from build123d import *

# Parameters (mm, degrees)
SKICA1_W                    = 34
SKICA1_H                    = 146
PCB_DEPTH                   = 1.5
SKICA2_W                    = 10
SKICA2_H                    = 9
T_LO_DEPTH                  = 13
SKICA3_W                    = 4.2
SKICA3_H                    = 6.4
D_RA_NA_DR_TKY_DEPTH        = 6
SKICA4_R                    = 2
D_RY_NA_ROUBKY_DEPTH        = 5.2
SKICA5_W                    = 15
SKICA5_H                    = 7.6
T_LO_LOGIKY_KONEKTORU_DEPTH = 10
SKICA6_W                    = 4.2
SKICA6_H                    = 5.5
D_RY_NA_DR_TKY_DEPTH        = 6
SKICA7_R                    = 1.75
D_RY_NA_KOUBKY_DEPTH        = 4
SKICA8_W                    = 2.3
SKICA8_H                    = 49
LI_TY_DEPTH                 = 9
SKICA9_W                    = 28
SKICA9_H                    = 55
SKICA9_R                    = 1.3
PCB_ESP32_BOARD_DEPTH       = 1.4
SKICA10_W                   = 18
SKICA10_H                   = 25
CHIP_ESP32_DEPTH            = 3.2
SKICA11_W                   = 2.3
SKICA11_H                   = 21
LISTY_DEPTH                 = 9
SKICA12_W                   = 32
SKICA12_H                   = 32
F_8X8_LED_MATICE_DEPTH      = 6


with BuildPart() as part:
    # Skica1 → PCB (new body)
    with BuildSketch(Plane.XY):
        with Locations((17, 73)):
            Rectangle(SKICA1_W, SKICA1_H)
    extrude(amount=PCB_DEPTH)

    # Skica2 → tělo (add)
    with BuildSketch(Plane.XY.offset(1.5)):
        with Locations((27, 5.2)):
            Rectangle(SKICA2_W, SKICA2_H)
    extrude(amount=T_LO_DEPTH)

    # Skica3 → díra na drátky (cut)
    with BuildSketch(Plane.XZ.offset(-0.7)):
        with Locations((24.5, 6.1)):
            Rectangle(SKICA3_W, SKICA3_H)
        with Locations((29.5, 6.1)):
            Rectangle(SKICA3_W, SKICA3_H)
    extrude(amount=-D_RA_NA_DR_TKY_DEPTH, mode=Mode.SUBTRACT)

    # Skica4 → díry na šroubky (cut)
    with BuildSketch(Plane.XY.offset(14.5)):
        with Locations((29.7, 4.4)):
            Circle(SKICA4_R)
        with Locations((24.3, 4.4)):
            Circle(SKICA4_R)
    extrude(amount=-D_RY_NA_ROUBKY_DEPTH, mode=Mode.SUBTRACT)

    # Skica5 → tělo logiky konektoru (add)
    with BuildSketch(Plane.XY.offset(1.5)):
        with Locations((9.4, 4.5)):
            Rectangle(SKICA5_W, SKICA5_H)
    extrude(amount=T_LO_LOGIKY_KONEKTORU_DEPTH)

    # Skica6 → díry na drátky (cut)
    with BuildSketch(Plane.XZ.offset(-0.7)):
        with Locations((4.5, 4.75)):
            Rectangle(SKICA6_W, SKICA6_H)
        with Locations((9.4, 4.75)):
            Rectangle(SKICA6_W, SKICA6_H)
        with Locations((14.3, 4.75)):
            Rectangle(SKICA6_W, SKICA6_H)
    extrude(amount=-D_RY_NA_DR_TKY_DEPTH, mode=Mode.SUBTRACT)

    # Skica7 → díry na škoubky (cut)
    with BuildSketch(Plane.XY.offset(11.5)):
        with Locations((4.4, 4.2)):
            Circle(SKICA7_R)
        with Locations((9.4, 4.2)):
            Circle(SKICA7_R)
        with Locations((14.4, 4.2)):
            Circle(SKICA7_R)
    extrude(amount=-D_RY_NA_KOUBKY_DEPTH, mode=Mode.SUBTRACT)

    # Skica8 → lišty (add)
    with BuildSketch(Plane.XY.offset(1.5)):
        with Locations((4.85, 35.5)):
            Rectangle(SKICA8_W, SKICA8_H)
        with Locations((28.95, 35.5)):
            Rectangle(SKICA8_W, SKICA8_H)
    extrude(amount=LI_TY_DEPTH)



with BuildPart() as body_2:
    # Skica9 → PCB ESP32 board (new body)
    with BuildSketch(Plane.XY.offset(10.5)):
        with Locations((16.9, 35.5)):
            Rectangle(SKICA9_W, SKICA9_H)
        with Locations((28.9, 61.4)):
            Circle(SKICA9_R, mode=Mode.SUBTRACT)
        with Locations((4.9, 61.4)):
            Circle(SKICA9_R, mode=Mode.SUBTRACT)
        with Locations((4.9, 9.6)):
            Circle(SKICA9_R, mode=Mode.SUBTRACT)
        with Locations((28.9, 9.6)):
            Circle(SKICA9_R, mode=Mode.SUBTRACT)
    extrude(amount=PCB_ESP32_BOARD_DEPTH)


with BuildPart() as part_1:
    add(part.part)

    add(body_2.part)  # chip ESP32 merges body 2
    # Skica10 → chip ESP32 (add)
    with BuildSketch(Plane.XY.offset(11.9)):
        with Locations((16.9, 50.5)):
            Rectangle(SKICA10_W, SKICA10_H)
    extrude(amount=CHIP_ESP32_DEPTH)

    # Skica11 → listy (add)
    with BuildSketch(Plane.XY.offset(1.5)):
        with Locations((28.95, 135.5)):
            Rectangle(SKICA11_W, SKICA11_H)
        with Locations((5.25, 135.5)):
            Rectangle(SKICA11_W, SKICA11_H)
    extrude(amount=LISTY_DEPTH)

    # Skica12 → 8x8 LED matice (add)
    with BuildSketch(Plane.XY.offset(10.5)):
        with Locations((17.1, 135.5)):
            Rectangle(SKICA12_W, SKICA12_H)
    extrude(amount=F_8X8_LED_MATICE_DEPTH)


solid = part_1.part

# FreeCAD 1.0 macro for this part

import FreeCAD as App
import Part
import Sketcher
from FreeCAD import Vector
Q = App.Units.Quantity

doc = App.newDocument("Part")
body = doc.addObject("PartDesign::Body", "Body")

# Sketch on XY plane
sketch1 = body.newObject("Sketcher::SketchObject", "Sketch")
sketch1.AttachmentSupport = (doc.getObject("XY_Plane"), [""])
sketch1.MapMode = "FlatFace"
sketch1.addGeometry([
    Part.LineSegment(Vector(0, 146, 0), Vector(0, 0, 0)),
    Part.LineSegment(Vector(0, 0, 0), Vector(34, 0, 0)),
    Part.LineSegment(Vector(34, 0, 0), Vector(34, 146, 0)),
    Part.LineSegment(Vector(34, 146, 0), Vector(0, 146, 0)),
], False)
sketch1.addConstraint([
    Sketcher.Constraint("Coincident", 0, 2, 1, 1),
    Sketcher.Constraint("Coincident", 1, 2, 2, 1),
    Sketcher.Constraint("Coincident", 2, 2, 3, 1),
    Sketcher.Constraint("Coincident", 3, 2, 0, 1),
    Sketcher.Constraint("Vertical", 0),
    Sketcher.Constraint("Horizontal", 1),
    Sketcher.Constraint("Vertical", 2),
    Sketcher.Constraint("Horizontal", 3),
    Sketcher.Constraint("Coincident", 0, 2, -1, 1),
    Sketcher.Constraint("DistanceX", 1, 1, 1, 2, Q("34 mm")),
    Sketcher.Constraint("DistanceY", 0, 2, 0, 1, Q("146 mm")),
])
pad1 = body.newObject("PartDesign::Pad", "Pad")
pad1.Profile = sketch1
pad1.Length = 1.5

# Sketch on XY plane
sketch2 = body.newObject("Sketcher::SketchObject", "Sketch001")
sketch2.AttachmentSupport = (doc.getObject("XY_Plane"), [""])
sketch2.MapMode = "FlatFace"
sketch2.AttachmentOffset = App.Placement(Vector(0, 0, 1.5), App.Rotation())
sketch2.addGeometry([
    Part.LineSegment(Vector(22, 10, 0), Vector(22, 1, 0)),
    Part.LineSegment(Vector(22, 1, 0), Vector(32, 1, 0)),
    Part.LineSegment(Vector(32, 1, 0), Vector(32, 10, 0)),
    Part.LineSegment(Vector(32, 10, 0), Vector(22, 10, 0)),
], False)
sketch2.addConstraint([
    Sketcher.Constraint("Coincident", 0, 2, 1, 1),
    Sketcher.Constraint("Coincident", 1, 2, 2, 1),
    Sketcher.Constraint("Coincident", 2, 2, 3, 1),
    Sketcher.Constraint("Coincident", 3, 2, 0, 1),
    Sketcher.Constraint("Vertical", 0),
    Sketcher.Constraint("Horizontal", 1),
    Sketcher.Constraint("Vertical", 2),
    Sketcher.Constraint("Horizontal", 3),
    Sketcher.Constraint("DistanceX", 1, 1, 1, 2, Q("10 mm")),
    Sketcher.Constraint("DistanceY", 0, 2, 0, 1, Q("9 mm")),
    Sketcher.Constraint("DistanceX", -1, 1, 0, 2, Q("22 mm")),
    Sketcher.Constraint("DistanceY", -1, 1, 0, 2, Q("0.7 mm")),
])
pad2 = body.newObject("PartDesign::Pad", "Pad001")
pad2.Profile = sketch2
pad2.Length = 13

# Sketch on XZ plane
sketch3 = body.newObject("Sketcher::SketchObject", "Sketch002")
sketch3.AttachmentSupport = (doc.getObject("XZ_Plane"), [""])
sketch3.MapMode = "FlatFace"
sketch3.AttachmentOffset = App.Placement(Vector(0, 0, -0.7), App.Rotation())
sketch3.addGeometry([
    Part.LineSegment(Vector(22.4, 9.3, 0), Vector(22.4, 2.9, 0)),  # 0
    Part.LineSegment(Vector(22.4, 2.9, 0), Vector(26.6, 2.9, 0)),  # 1
    Part.LineSegment(Vector(26.6, 2.9, 0), Vector(26.6, 9.3, 0)),  # 2
    Part.LineSegment(Vector(26.6, 9.3, 0), Vector(22.4, 9.3, 0)),  # 3
    Part.LineSegment(Vector(27.4, 9.3, 0), Vector(27.4, 2.9, 0)),  # 4
    Part.LineSegment(Vector(27.4, 2.9, 0), Vector(31.6, 2.9, 0)),  # 5
    Part.LineSegment(Vector(31.6, 2.9, 0), Vector(31.6, 9.3, 0)),  # 6
    Part.LineSegment(Vector(31.6, 9.3, 0), Vector(27.4, 9.3, 0)),  # 7
], False)
sketch3.addConstraint([
    Sketcher.Constraint("Coincident", 0, 2, 1, 1),
    Sketcher.Constraint("Coincident", 1, 2, 2, 1),
    Sketcher.Constraint("Coincident", 2, 2, 3, 1),
    Sketcher.Constraint("Coincident", 3, 2, 0, 1),
    Sketcher.Constraint("Coincident", 4, 2, 5, 1),
    Sketcher.Constraint("Coincident", 5, 2, 6, 1),
    Sketcher.Constraint("Coincident", 6, 2, 7, 1),
    Sketcher.Constraint("Coincident", 7, 2, 4, 1),
    Sketcher.Constraint("Vertical", 0),
    Sketcher.Constraint("Horizontal", 1),
    Sketcher.Constraint("Vertical", 2),
    Sketcher.Constraint("Horizontal", 3),
    Sketcher.Constraint("Vertical", 4),
    Sketcher.Constraint("Horizontal", 5),
    Sketcher.Constraint("Vertical", 6),
    Sketcher.Constraint("Horizontal", 7),
    Sketcher.Constraint("Horizontal", 1, 2, 4, 2),
    Sketcher.Constraint("Horizontal", 3, 2, 6, 2),
    Sketcher.Constraint("Equal", 3, 5),
    Sketcher.Constraint("DistanceX", 1, 1, 1, 2, Q("4.2 mm")),
    Sketcher.Constraint("DistanceY", 0, 2, 0, 1, Q("6.4 mm")),
    Sketcher.Constraint("DistanceX", 0, 2, 4, 2, Q("5 mm")),
    Sketcher.Constraint("DistanceX", -1, 1, 0, 2, Q("22.4 mm")),
    Sketcher.Constraint("DistanceY", -1, 1, 0, 2, Q("2.9 mm")),
])
pocket1 = body.newObject("PartDesign::Pocket", "Pocket")
pocket1.Profile = sketch3
pocket1.Length = 6

# Sketch on XY plane
sketch4 = body.newObject("Sketcher::SketchObject", "Sketch003")
sketch4.AttachmentSupport = (doc.getObject("XY_Plane"), [""])
sketch4.MapMode = "FlatFace"
sketch4.AttachmentOffset = App.Placement(Vector(0, 0, 14.5), App.Rotation())
sketch4.addGeometry([
    Part.Circle(Vector(29.7, 4.4, 0), Vector(0, 0, 1), 2),
    Part.Circle(Vector(24.3, 4.4, 0), Vector(0, 0, 1), 2),
], False)
sketch4.addConstraint([
    Sketcher.Constraint("Equal", 0, 1),
    Sketcher.Constraint("Horizontal", 0, 3, 1, 3),
    Sketcher.Constraint("Diameter", 0, Q("4 mm")),
    Sketcher.Constraint("DistanceX", -1, 1, 0, 3, Q("29.7 mm")),
    Sketcher.Constraint("DistanceY", -1, 1, 0, 3, Q("4.4 mm")),
    Sketcher.Constraint("DistanceX", -1, 1, 1, 3, Q("24.3 mm")),
])
pocket2 = body.newObject("PartDesign::Pocket", "Pocket001")
pocket2.Profile = sketch4
pocket2.Length = 5.2

# Sketch on XY plane
sketch5 = body.newObject("Sketcher::SketchObject", "Sketch004")
sketch5.AttachmentSupport = (doc.getObject("XY_Plane"), [""])
sketch5.MapMode = "FlatFace"
sketch5.AttachmentOffset = App.Placement(Vector(0, 0, 1.5), App.Rotation())
sketch5.addGeometry([
    Part.LineSegment(Vector(2, 8, 0), Vector(2, 1, 0)),
    Part.LineSegment(Vector(2, 1, 0), Vector(17, 1, 0)),
    Part.LineSegment(Vector(17, 1, 0), Vector(17, 8, 0)),
    Part.LineSegment(Vector(17, 8, 0), Vector(2, 8, 0)),
], False)
sketch5.addConstraint([
    Sketcher.Constraint("Coincident", 0, 2, 1, 1),
    Sketcher.Constraint("Coincident", 1, 2, 2, 1),
    Sketcher.Constraint("Coincident", 2, 2, 3, 1),
    Sketcher.Constraint("Coincident", 3, 2, 0, 1),
    Sketcher.Constraint("Vertical", 0),
    Sketcher.Constraint("Horizontal", 1),
    Sketcher.Constraint("Vertical", 2),
    Sketcher.Constraint("Horizontal", 3),
    Sketcher.Constraint("DistanceX", 1, 1, 1, 2, Q("15 mm")),
    Sketcher.Constraint("DistanceY", 0, 2, 0, 1, Q("7.6 mm")),
    Sketcher.Constraint("DistanceX", -1, 1, 0, 2, Q("1.9 mm")),
    Sketcher.Constraint("DistanceY", -1, 1, 0, 2, Q("0.7 mm")),
])
pad3 = body.newObject("PartDesign::Pad", "Pad002")
pad3.Profile = sketch5
pad3.Length = 10

# Sketch on XZ plane
sketch6 = body.newObject("Sketcher::SketchObject", "Sketch005")
sketch6.AttachmentSupport = (doc.getObject("XZ_Plane"), [""])
sketch6.MapMode = "FlatFace"
sketch6.AttachmentOffset = App.Placement(Vector(0, 0, -0.7), App.Rotation())
sketch6.addGeometry([
    Part.LineSegment(Vector(2.4, 7.5, 0), Vector(2.4, 2, 0)),  # 0
    Part.LineSegment(Vector(2.4, 2, 0), Vector(6.6, 2, 0)),  # 1
    Part.LineSegment(Vector(6.6, 2, 0), Vector(6.6, 7.5, 0)),  # 2
    Part.LineSegment(Vector(6.6, 7.5, 0), Vector(2.4, 7.5, 0)),  # 3
    Part.LineSegment(Vector(7.3, 7.5, 0), Vector(7.3, 2, 0)),  # 4
    Part.LineSegment(Vector(7.3, 2, 0), Vector(11.5, 2, 0)),  # 5
    Part.LineSegment(Vector(11.5, 2, 0), Vector(11.5, 7.5, 0)),  # 6
    Part.LineSegment(Vector(11.5, 7.5, 0), Vector(7.3, 7.5, 0)),  # 7
    Part.LineSegment(Vector(12.2, 7.5, 0), Vector(12.2, 2, 0)),  # 8
    Part.LineSegment(Vector(12.2, 2, 0), Vector(16.4, 2, 0)),  # 9
    Part.LineSegment(Vector(16.4, 2, 0), Vector(16.4, 7.5, 0)),  # 10
    Part.LineSegment(Vector(16.4, 7.5, 0), Vector(12.2, 7.5, 0)),  # 11
], False)
sketch6.addConstraint([
    Sketcher.Constraint("Coincident", 0, 2, 1, 1),
    Sketcher.Constraint("Coincident", 1, 2, 2, 1),
    Sketcher.Constraint("Coincident", 2, 2, 3, 1),
    Sketcher.Constraint("Coincident", 3, 2, 0, 1),
    Sketcher.Constraint("Coincident", 4, 2, 5, 1),
    Sketcher.Constraint("Coincident", 5, 2, 6, 1),
    Sketcher.Constraint("Coincident", 6, 2, 7, 1),
    Sketcher.Constraint("Coincident", 7, 2, 4, 1),
    Sketcher.Constraint("Coincident", 8, 2, 9, 1),
    Sketcher.Constraint("Coincident", 9, 2, 10, 1),
    Sketcher.Constraint("Coincident", 10, 2, 11, 1),
    Sketcher.Constraint("Coincident", 11, 2, 8, 1),
    Sketcher.Constraint("Vertical", 0),
    Sketcher.Constraint("Horizontal", 1),
    Sketcher.Constraint("Vertical", 2),
    Sketcher.Constraint("Horizontal", 3),
    Sketcher.Constraint("Vertical", 4),
    Sketcher.Constraint("Horizontal", 5),
    Sketcher.Constraint("Vertical", 6),
    Sketcher.Constraint("Horizontal", 7),
    Sketcher.Constraint("Vertical", 8),
    Sketcher.Constraint("Horizontal", 9),
    Sketcher.Constraint("Vertical", 10),
    Sketcher.Constraint("Horizontal", 11),
    Sketcher.Constraint("Horizontal", 1, 2, 4, 2),
    Sketcher.Constraint("Horizontal", 3, 2, 6, 2),
    Sketcher.Constraint("Horizontal", 5, 2, 8, 2),
    Sketcher.Constraint("Horizontal", 7, 2, 10, 2),
    Sketcher.Constraint("Equal", 3, 5),
    Sketcher.Constraint("Equal", 7, 9),
    Sketcher.Constraint("DistanceX", 1, 1, 1, 2, Q("4.2 mm")),
    Sketcher.Constraint("DistanceY", 0, 2, 0, 1, Q("5.5 mm")),
    Sketcher.Constraint("DistanceY", -1, 1, 0, 2, Q("2 mm")),
    Sketcher.Constraint("DistanceX", -1, 1, 0, 2, Q("2.4 mm")),
    Sketcher.Constraint("DistanceX", -1, 1, 4, 2, Q("7.3 mm")),
    Sketcher.Constraint("DistanceX", -1, 1, 8, 2, Q("12.2 mm")),
])
pocket3 = body.newObject("PartDesign::Pocket", "Pocket002")
pocket3.Profile = sketch6
pocket3.Length = 6

# Sketch on XY plane
sketch7 = body.newObject("Sketcher::SketchObject", "Sketch006")
sketch7.AttachmentSupport = (doc.getObject("XY_Plane"), [""])
sketch7.MapMode = "FlatFace"
sketch7.AttachmentOffset = App.Placement(Vector(0, 0, 11.5), App.Rotation())
sketch7.addGeometry([
    Part.Circle(Vector(4.4, 4.2, 0), Vector(0, 0, 1), 1.8),
    Part.Circle(Vector(9.4, 4.2, 0), Vector(0, 0, 1), 1.8),
    Part.Circle(Vector(14.4, 4.2, 0), Vector(0, 0, 1), 1.8),
], False)
sketch7.addConstraint([
    Sketcher.Constraint("Equal", 0, 1),
    Sketcher.Constraint("Equal", 1, 2),
    Sketcher.Constraint("Horizontal", 0, 3, 1, 3),
    Sketcher.Constraint("Horizontal", 1, 3, 2, 3),
    Sketcher.Constraint("Diameter", 0, Q("3.5 mm")),
    Sketcher.Constraint("DistanceX", 0, 3, 1, 3, Q("5 mm")),
    Sketcher.Constraint("DistanceX", 1, 3, 2, 3, Q("5 mm")),
    Sketcher.Constraint("DistanceX", -1, 1, 0, 3, Q("4.4 mm")),
    Sketcher.Constraint("DistanceY", -1, 1, 0, 3, Q("4.2 mm")),
])
pocket4 = body.newObject("PartDesign::Pocket", "Pocket003")
pocket4.Profile = sketch7
pocket4.Length = 4

# Sketch on XY plane
sketch8 = body.newObject("Sketcher::SketchObject", "Sketch007")
sketch8.AttachmentSupport = (doc.getObject("XY_Plane"), [""])
sketch8.MapMode = "FlatFace"
sketch8.AttachmentOffset = App.Placement(Vector(0, 0, 1.5), App.Rotation())
sketch8.addGeometry([
    Part.LineSegment(Vector(3.7, 60, 0), Vector(3.7, 11, 0)),  # 0
    Part.LineSegment(Vector(3.7, 11, 0), Vector(6, 11, 0)),  # 1
    Part.LineSegment(Vector(6, 11, 0), Vector(6, 60, 0)),  # 2
    Part.LineSegment(Vector(6, 60, 0), Vector(3.7, 60, 0)),  # 3
    Part.LineSegment(Vector(27.8, 60, 0), Vector(27.8, 11, 0)),  # 4
    Part.LineSegment(Vector(27.8, 11, 0), Vector(30.1, 11, 0)),  # 5
    Part.LineSegment(Vector(30.1, 11, 0), Vector(30.1, 60, 0)),  # 6
    Part.LineSegment(Vector(30.1, 60, 0), Vector(27.8, 60, 0)),  # 7
], False)
sketch8.addConstraint([
    Sketcher.Constraint("Coincident", 0, 2, 1, 1),
    Sketcher.Constraint("Coincident", 1, 2, 2, 1),
    Sketcher.Constraint("Coincident", 2, 2, 3, 1),
    Sketcher.Constraint("Coincident", 3, 2, 0, 1),
    Sketcher.Constraint("Coincident", 4, 2, 5, 1),
    Sketcher.Constraint("Coincident", 5, 2, 6, 1),
    Sketcher.Constraint("Coincident", 6, 2, 7, 1),
    Sketcher.Constraint("Coincident", 7, 2, 4, 1),
    Sketcher.Constraint("Vertical", 0),
    Sketcher.Constraint("Horizontal", 1),
    Sketcher.Constraint("Vertical", 2),
    Sketcher.Constraint("Horizontal", 3),
    Sketcher.Constraint("Vertical", 4),
    Sketcher.Constraint("Horizontal", 5),
    Sketcher.Constraint("Vertical", 6),
    Sketcher.Constraint("Horizontal", 7),
    Sketcher.Constraint("Horizontal", 1, 2, 4, 2),
    Sketcher.Constraint("Horizontal", 3, 2, 6, 2),
    Sketcher.Constraint("Equal", 3, 5),
    Sketcher.Constraint("DistanceY", 0, 2, 0, 1, Q("49 mm")),
    Sketcher.Constraint("DistanceX", 1, 1, 1, 2, Q("2.3 mm")),
    Sketcher.Constraint("DistanceY", -1, 1, 0, 2, Q("11 mm")),
    Sketcher.Constraint("DistanceX", -1, 1, 1, 2, Q("6 mm")),
    Sketcher.Constraint("DistanceX", -1, 1, 4, 2, Q("27.8 mm")),
])
pad4 = body.newObject("PartDesign::Pad", "Pad003")
pad4.Profile = sketch8
pad4.Length = 9
body2 = doc.addObject("PartDesign::Body", "Body001")

# Sketch on XY plane
sketch9 = body2.newObject("Sketcher::SketchObject", "Sketch008")
sketch9.AttachmentSupport = (doc.getObject("XY_Plane001"), [""])
sketch9.MapMode = "FlatFace"
sketch9.AttachmentOffset = App.Placement(Vector(0, 0, 10.5), App.Rotation())
sketch9.addGeometry([
    Part.LineSegment(Vector(2.9, 63, 0), Vector(2.9, 8, 0)),  # 0
    Part.LineSegment(Vector(2.9, 8, 0), Vector(30.9, 8, 0)),  # 1
    Part.LineSegment(Vector(30.9, 8, 0), Vector(30.9, 63, 0)),  # 2
    Part.LineSegment(Vector(30.9, 63, 0), Vector(2.9, 63, 0)),  # 3
    Part.Circle(Vector(4.9, 9.6, 0), Vector(0, 0, 1), 1.3),  # 4
    Part.Circle(Vector(28.9, 9.6, 0), Vector(0, 0, 1), 1.3),  # 5
    Part.Circle(Vector(4.9, 61.4, 0), Vector(0, 0, 1), 1.3),  # 6
    Part.Circle(Vector(28.9, 61.4, 0), Vector(0, 0, 1), 1.3),  # 7
], False)
sketch9.addConstraint([
    Sketcher.Constraint("Coincident", 0, 2, 1, 1),
    Sketcher.Constraint("Coincident", 1, 2, 2, 1),
    Sketcher.Constraint("Coincident", 2, 2, 3, 1),
    Sketcher.Constraint("Coincident", 3, 2, 0, 1),
    Sketcher.Constraint("Vertical", 0),
    Sketcher.Constraint("Horizontal", 1),
    Sketcher.Constraint("Vertical", 2),
    Sketcher.Constraint("Horizontal", 3),
    Sketcher.Constraint("Equal", 4, 5),
    Sketcher.Constraint("Equal", 5, 6),
    Sketcher.Constraint("Equal", 6, 7),
    Sketcher.Constraint("Horizontal", 4, 3, 5, 3),
    Sketcher.Constraint("Horizontal", 6, 3, 7, 3),
    Sketcher.Constraint("Vertical", 4, 3, 6, 3),
    Sketcher.Constraint("Vertical", 5, 3, 7, 3),
    Sketcher.Constraint("Diameter", 4, Q("2.6 mm")),
    Sketcher.Constraint("DistanceX", 1, 1, 1, 2, Q("28 mm")),
    Sketcher.Constraint("DistanceY", 0, 2, 0, 1, Q("55 mm")),
    Sketcher.Constraint("DistanceY", -1, 1, 0, 2, Q("8 mm")),
    Sketcher.Constraint("DistanceX", 4, 3, 5, 3, Q("24 mm")),
    Sketcher.Constraint("DistanceX", 0, 2, 4, 3, Q("2 mm")),
    Sketcher.Constraint("DistanceX", -1, 1, 4, 3, Q("4.9 mm")),
    Sketcher.Constraint("DistanceY", -1, 1, 4, 3, Q("9.6 mm")),
    Sketcher.Constraint("DistanceY", -1, 1, 6, 3, Q("61.4 mm")),
])
pad5 = body2.newObject("PartDesign::Pad", "Pad004")
pad5.Profile = sketch9
pad5.Length = 1.4
doc.recompute()

boolean = body.newObject("PartDesign::Boolean", "Boolean")
boolean.Type = "Fuse"
boolean.addObjects([body2])

# Sketch on XY plane
sketch10 = body.newObject("Sketcher::SketchObject", "Sketch009")
sketch10.AttachmentSupport = (doc.getObject("XY_Plane"), [""])
sketch10.MapMode = "FlatFace"
sketch10.AttachmentOffset = App.Placement(Vector(0, 0, 11.9), App.Rotation())
sketch10.addGeometry([
    Part.LineSegment(Vector(8, 63, 0), Vector(8, 38, 0)),
    Part.LineSegment(Vector(8, 38, 0), Vector(26, 38, 0)),
    Part.LineSegment(Vector(26, 38, 0), Vector(26, 63, 0)),
    Part.LineSegment(Vector(26, 63, 0), Vector(8, 63, 0)),
], False)
sketch10.addConstraint([
    Sketcher.Constraint("Coincident", 0, 2, 1, 1),
    Sketcher.Constraint("Coincident", 1, 2, 2, 1),
    Sketcher.Constraint("Coincident", 2, 2, 3, 1),
    Sketcher.Constraint("Coincident", 3, 2, 0, 1),
    Sketcher.Constraint("Vertical", 0),
    Sketcher.Constraint("Horizontal", 1),
    Sketcher.Constraint("Vertical", 2),
    Sketcher.Constraint("Horizontal", 3),
    Sketcher.Constraint("DistanceX", 1, 1, 1, 2, Q("18 mm")),
    Sketcher.Constraint("DistanceY", 0, 2, 0, 1, Q("25 mm")),
    Sketcher.Constraint("DistanceY", -1, 1, 0, 2, Q("38 mm")),
    Sketcher.Constraint("DistanceX", -1, 1, 0, 2, Q("7.9 mm")),
])
pad6 = body.newObject("PartDesign::Pad", "Pad005")
pad6.Profile = sketch10
pad6.Length = 3.2

# Sketch on XY plane
sketch11 = body.newObject("Sketcher::SketchObject", "Sketch010")
sketch11.AttachmentSupport = (doc.getObject("XY_Plane"), [""])
sketch11.MapMode = "FlatFace"
sketch11.AttachmentOffset = App.Placement(Vector(0, 0, 1.5), App.Rotation())
sketch11.addGeometry([
    Part.LineSegment(Vector(27.8, 146, 0), Vector(27.8, 125, 0)),  # 0
    Part.LineSegment(Vector(27.8, 125, 0), Vector(30.1, 125, 0)),  # 1
    Part.LineSegment(Vector(30.1, 125, 0), Vector(30.1, 146, 0)),  # 2
    Part.LineSegment(Vector(30.1, 146, 0), Vector(27.8, 146, 0)),  # 3
    Part.LineSegment(Vector(4.1, 146, 0), Vector(4.1, 125, 0)),  # 4
    Part.LineSegment(Vector(4.1, 125, 0), Vector(6.4, 125, 0)),  # 5
    Part.LineSegment(Vector(6.4, 125, 0), Vector(6.4, 146, 0)),  # 6
    Part.LineSegment(Vector(6.4, 146, 0), Vector(4.1, 146, 0)),  # 7
], False)
sketch11.addConstraint([
    Sketcher.Constraint("Coincident", 0, 2, 1, 1),
    Sketcher.Constraint("Coincident", 1, 2, 2, 1),
    Sketcher.Constraint("Coincident", 2, 2, 3, 1),
    Sketcher.Constraint("Coincident", 3, 2, 0, 1),
    Sketcher.Constraint("Coincident", 4, 2, 5, 1),
    Sketcher.Constraint("Coincident", 5, 2, 6, 1),
    Sketcher.Constraint("Coincident", 6, 2, 7, 1),
    Sketcher.Constraint("Coincident", 7, 2, 4, 1),
    Sketcher.Constraint("Vertical", 0),
    Sketcher.Constraint("Horizontal", 1),
    Sketcher.Constraint("Vertical", 2),
    Sketcher.Constraint("Horizontal", 3),
    Sketcher.Constraint("Vertical", 4),
    Sketcher.Constraint("Horizontal", 5),
    Sketcher.Constraint("Vertical", 6),
    Sketcher.Constraint("Horizontal", 7),
    Sketcher.Constraint("Horizontal", 1, 2, 4, 2),
    Sketcher.Constraint("Horizontal", 3, 2, 6, 2),
    Sketcher.Constraint("Equal", 3, 5),
    Sketcher.Constraint("DistanceY", 0, 2, 0, 1, Q("21 mm")),
    Sketcher.Constraint("DistanceX", 1, 1, 1, 2, Q("2.3 mm")),
    Sketcher.Constraint("DistanceY", -1, 1, 0, 2, Q("125 mm")),
    Sketcher.Constraint("DistanceX", 4, 2, 1, 2, Q("26 mm")),
    Sketcher.Constraint("DistanceX", -1, 1, 0, 2, Q("27.8 mm")),
])
pad7 = body.newObject("PartDesign::Pad", "Pad006")
pad7.Profile = sketch11
pad7.Length = 9

# Sketch on XY plane
sketch12 = body.newObject("Sketcher::SketchObject", "Sketch011")
sketch12.AttachmentSupport = (doc.getObject("XY_Plane"), [""])
sketch12.MapMode = "FlatFace"
sketch12.AttachmentOffset = App.Placement(Vector(0, 0, 10.5), App.Rotation())
sketch12.addGeometry([
    Part.LineSegment(Vector(1, 152, 0), Vector(1, 120, 0)),
    Part.LineSegment(Vector(1, 120, 0), Vector(33, 120, 0)),
    Part.LineSegment(Vector(33, 120, 0), Vector(33, 152, 0)),
    Part.LineSegment(Vector(33, 152, 0), Vector(1, 152, 0)),
], False)
sketch12.addConstraint([
    Sketcher.Constraint("Coincident", 0, 2, 1, 1),
    Sketcher.Constraint("Coincident", 1, 2, 2, 1),
    Sketcher.Constraint("Coincident", 2, 2, 3, 1),
    Sketcher.Constraint("Coincident", 3, 2, 0, 1),
    Sketcher.Constraint("Vertical", 0),
    Sketcher.Constraint("Horizontal", 1),
    Sketcher.Constraint("Vertical", 2),
    Sketcher.Constraint("Horizontal", 3),
    Sketcher.Constraint("Equal", 3, 0),
    Sketcher.Constraint("DistanceX", 1, 1, 1, 2, Q("32 mm")),
    Sketcher.Constraint("DistanceX", -1, 1, 0, 2, Q("1.1 mm")),
    Sketcher.Constraint("DistanceY", -1, 1, 0, 2, Q("119.5 mm")),
])
pad8 = body.newObject("PartDesign::Pad", "Pad007")
pad8.Profile = sketch12
pad8.Length = 6

doc.recompute()
